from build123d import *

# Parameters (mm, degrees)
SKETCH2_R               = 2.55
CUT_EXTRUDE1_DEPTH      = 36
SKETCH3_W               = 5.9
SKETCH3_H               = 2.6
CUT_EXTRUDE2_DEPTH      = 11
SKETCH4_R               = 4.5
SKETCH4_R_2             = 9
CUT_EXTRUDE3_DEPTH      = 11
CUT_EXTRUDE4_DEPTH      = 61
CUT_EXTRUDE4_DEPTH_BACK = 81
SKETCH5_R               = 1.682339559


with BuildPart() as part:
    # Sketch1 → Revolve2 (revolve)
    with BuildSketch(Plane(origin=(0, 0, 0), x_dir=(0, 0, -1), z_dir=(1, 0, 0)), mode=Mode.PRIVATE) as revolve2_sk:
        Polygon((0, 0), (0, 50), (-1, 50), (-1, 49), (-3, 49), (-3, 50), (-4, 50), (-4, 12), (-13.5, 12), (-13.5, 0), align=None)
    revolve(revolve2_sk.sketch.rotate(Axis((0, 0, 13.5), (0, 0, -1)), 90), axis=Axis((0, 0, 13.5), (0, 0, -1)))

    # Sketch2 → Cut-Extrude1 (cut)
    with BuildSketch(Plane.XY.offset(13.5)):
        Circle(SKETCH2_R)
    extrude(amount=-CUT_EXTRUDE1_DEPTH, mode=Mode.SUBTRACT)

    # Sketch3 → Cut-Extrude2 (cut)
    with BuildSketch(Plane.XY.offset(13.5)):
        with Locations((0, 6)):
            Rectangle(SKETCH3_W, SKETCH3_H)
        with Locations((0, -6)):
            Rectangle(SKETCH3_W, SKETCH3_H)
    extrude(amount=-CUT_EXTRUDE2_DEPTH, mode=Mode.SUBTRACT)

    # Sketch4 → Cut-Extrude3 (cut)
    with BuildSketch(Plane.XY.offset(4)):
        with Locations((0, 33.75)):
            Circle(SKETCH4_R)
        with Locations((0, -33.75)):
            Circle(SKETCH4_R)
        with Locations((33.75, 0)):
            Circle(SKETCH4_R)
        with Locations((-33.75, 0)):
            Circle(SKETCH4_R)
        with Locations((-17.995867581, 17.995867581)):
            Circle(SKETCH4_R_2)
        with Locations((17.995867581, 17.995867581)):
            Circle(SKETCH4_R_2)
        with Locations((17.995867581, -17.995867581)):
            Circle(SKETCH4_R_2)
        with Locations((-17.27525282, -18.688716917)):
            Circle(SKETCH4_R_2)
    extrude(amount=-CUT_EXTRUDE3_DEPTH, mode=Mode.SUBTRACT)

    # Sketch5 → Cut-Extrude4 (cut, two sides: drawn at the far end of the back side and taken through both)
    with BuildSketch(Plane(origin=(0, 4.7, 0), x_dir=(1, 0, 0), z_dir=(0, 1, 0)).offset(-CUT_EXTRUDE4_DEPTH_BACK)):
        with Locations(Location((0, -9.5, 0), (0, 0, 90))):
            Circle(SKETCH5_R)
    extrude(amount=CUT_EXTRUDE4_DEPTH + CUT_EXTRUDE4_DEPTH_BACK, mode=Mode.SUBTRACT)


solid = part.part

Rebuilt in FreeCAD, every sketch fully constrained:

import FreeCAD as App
import Part
import Sketcher

doc = App.newDocument("Part")
body = doc.addObject("PartDesign::Body", "Body")

sketch1 = body.newObject("Sketcher::SketchObject", "Sketch")
sketch1.AttachmentSupport = (doc.getObject("YZ_Plane"), [""])
sketch1.MapMode = "FlatFace"
sketch1.addGeometry(Part.LineSegment(App.Vector(0, 0, 0), App.Vector(50, 0, 0)), False)
sketch1.addGeometry(Part.LineSegment(App.Vector(50, 0, 0), App.Vector(50, 1, 0)), False)
sketch1.addGeometry(Part.LineSegment(App.Vector(50, 1, 0), App.Vector(49, 1, 0)), False)
sketch1.addGeometry(Part.LineSegment(App.Vector(49, 1, 0), App.Vector(49, 3, 0)), False)
sketch1.addGeometry(Part.LineSegment(App.Vector(49, 3, 0), App.Vector(50, 3, 0)), False)
sketch1.addGeometry(Part.LineSegment(App.Vector(50, 3, 0), App.Vector(50, 4, 0)), False)
sketch1.addGeometry(Part.LineSegment(App.Vector(50, 4, 0), App.Vector(12, 4, 0)), False)
sketch1.addGeometry(Part.LineSegment(App.Vector(12, 4, 0), App.Vector(12, 13.5, 0)), False)
sketch1.addGeometry(Part.LineSegment(App.Vector(12, 13.5, 0), App.Vector(0, 13.5, 0)), False)
sketch1.addGeometry(Part.LineSegment(App.Vector(0, 13.5, 0), App.Vector(0, 0, 0)), False)
sketch1.addConstraint(Sketcher.Constraint("Coincident", 0, 2, 1, 1))
sketch1.addConstraint(Sketcher.Constraint("Coincident", 1, 2, 2, 1))
sketch1.addConstraint(Sketcher.Constraint("Coincident", 2, 2, 3, 1))
sketch1.addConstraint(Sketcher.Constraint("Coincident", 3, 2, 4, 1))
sketch1.addConstraint(Sketcher.Constraint("Coincident", 4, 2, 5, 1))
sketch1.addConstraint(Sketcher.Constraint("Coincident", 5, 2, 6, 1))
sketch1.addConstraint(Sketcher.Constraint("Coincident", 6, 2, 7, 1))
sketch1.addConstraint(Sketcher.Constraint("Coincident", 7, 2, 8, 1))
sketch1.addConstraint(Sketcher.Constraint("Coincident", 8, 2, 9, 1))
sketch1.addConstraint(Sketcher.Constraint("Coincident", 9, 2, 0, 1))
sketch1.addConstraint(Sketcher.Constraint("Horizontal", 0))
sketch1.addConstraint(Sketcher.Constraint("Vertical", 1))
sketch1.addConstraint(Sketcher.Constraint("Horizontal", 2))
sketch1.addConstraint(Sketcher.Constraint("Vertical", 3))
sketch1.addConstraint(Sketcher.Constraint("Horizontal", 4))
sketch1.addConstraint(Sketcher.Constraint("Vertical", 5))
sketch1.addConstraint(Sketcher.Constraint("Horizontal", 6))
sketch1.addConstraint(Sketcher.Constraint("Vertical", 7))
sketch1.addConstraint(Sketcher.Constraint("Horizontal", 8))
sketch1.addConstraint(Sketcher.Constraint("Vertical", 9))
sketch1.addConstraint(Sketcher.Constraint("Coincident", 9, 2, -1, 1))
sketch1.addConstraint(Sketcher.Constraint("Vertical", 1, 2, 4, 2))
sketch1.addConstraint(Sketcher.Constraint("Equal", 4, 1))
sketch1.addConstraint(Sketcher.Constraint("Equal", 1, 5))
sketch1.addConstraint(Sketcher.Constraint("DistanceX", 0, 1, 0, 2, 50.0))
sketch1.addConstraint(Sketcher.Constraint("DistanceX", 2, 2, 2, 1, 1.0))
sketch1.addConstraint(Sketcher.Constraint("DistanceX", 6, 2, 6, 1, 38.0))
sketch1.addConstraint(Sketcher.Constraint("DistanceY", 3, 1, 3, 2, 2.0))
sketch1.addConstraint(Sketcher.Constraint("DistanceY", 7, 1, 7, 2, 9.5))
revolution = body.newObject("PartDesign::Revolution", "Revolution")
revolution.Profile = sketch1
revolution.ReferenceAxis = (sketch1, ["V_Axis"])
revolution.Angle = 360

sketch2 = body.newObject("Sketcher::SketchObject", "Sketch001")
sketch2.AttachmentSupport = (doc.getObject("XY_Plane"), [""])
sketch2.MapMode = "FlatFace"
sketch2.AttachmentOffset = App.Placement(App.Vector(0, 0, 13.5), App.Rotation())
sketch2.addGeometry(Part.Circle(App.Vector(0, 0, 0), App.Vector(0, 0, 1), 2.5), False)
sketch2.addConstraint(Sketcher.Constraint("Coincident", 0, 3, -1, 1))
sketch2.addConstraint(Sketcher.Constraint("Diameter", 0, 5.1))
pocket1 = body.newObject("PartDesign::Pocket", "Pocket")
pocket1.Profile = sketch2
pocket1.Length = 36

sketch3 = body.newObject("Sketcher::SketchObject", "Sketch002")
sketch3.AttachmentSupport = (doc.getObject("XY_Plane"), [""])
sketch3.MapMode = "FlatFace"
sketch3.AttachmentOffset = App.Placement(App.Vector(0, 0, 13.5), App.Rotation())
sketch3.addGeometry(Part.LineSegment(App.Vector(-3, 7.3, 0), App.Vector(-3, 4.7, 0)), False)
sketch3.addGeometry(Part.LineSegment(App.Vector(-3, 4.7, 0), App.Vector(3, 4.7, 0)), False)
sketch3.addGeometry(Part.LineSegment(App.Vector(3, 4.7, 0), App.Vector(3, 7.3, 0)), False)
sketch3.addGeometry(Part.LineSegment(App.Vector(3, 7.3, 0), App.Vector(-3, 7.3, 0)), False)
sketch3.addGeometry(Part.LineSegment(App.Vector(-3, -4.7, 0), App.Vector(-3, -7.3, 0)), False)
sketch3.addGeometry(Part.LineSegment(App.Vector(-3, -7.3, 0), App.Vector(3, -7.3, 0)), False)
sketch3.addGeometry(Part.LineSegment(App.Vector(3, -7.3, 0), App.Vector(3, -4.7, 0)), False)
sketch3.addGeometry(Part.LineSegment(App.Vector(3, -4.7, 0), App.Vector(-3, -4.7, 0)), False)
sketch3.addConstraint(Sketcher.Constraint("Coincident", 0, 2, 1, 1))
sketch3.addConstraint(Sketcher.Constraint("Coincident", 1, 2, 2, 1))
sketch3.addConstraint(Sketcher.Constraint("Coincident", 2, 2, 3, 1))
sketch3.addConstraint(Sketcher.Constraint("Coincident", 3, 2, 0, 1))
sketch3.addConstraint(Sketcher.Constraint("Coincident", 4, 2, 5, 1))
sketch3.addConstraint(Sketcher.Constraint("Coincident", 5, 2, 6, 1))
sketch3.addConstraint(Sketcher.Constraint("Coincident", 6, 2, 7, 1))
sketch3.addConstraint(Sketcher.Constraint("Coincident", 7, 2, 4, 1))
sketch3.addConstraint(Sketcher.Constraint("Vertical", 0))
sketch3.addConstraint(Sketcher.Constraint("Horizontal", 1))
sketch3.addConstraint(Sketcher.Constraint("Vertical", 2))
sketch3.addConstraint(Sketcher.Constraint("Horizontal", 3))
sketch3.addConstraint(Sketcher.Constraint("Vertical", 4))
sketch3.addConstraint(Sketcher.Constraint("Horizontal", 5))
sketch3.addConstraint(Sketcher.Constraint("Vertical", 6))
sketch3.addConstraint(Sketcher.Constraint("Horizontal", 7))
sketch3.addConstraint(Sketcher.Constraint("Symmetric", 2, 2, 4, 2, -1, 1))
sketch3.addConstraint(Sketcher.Constraint("Symmetric", 0, 2, 6, 2, -1, 1))
sketch3.addConstraint(Sketcher.Constraint("Vertical", 3, 2, 4, 2))
sketch3.addConstraint(Sketcher.Constraint("DistanceX", 1, 1, 1, 2, 5.9))
sketch3.addConstraint(Sketcher.Constraint("DistanceY", 0, 2, 0, 1, 2.6))
sketch3.addConstraint(Sketcher.Constraint("DistanceY", 4, 2, 0, 2, 12.0))
pocket2 = body.newObject("PartDesign::Pocket", "Pocket001")
pocket2.Profile = sketch3
pocket2.Length = 11

sketch4 = body.newObject("Sketcher::SketchObject", "Sketch003")
sketch4.AttachmentSupport = (doc.getObject("XY_Plane"), [""])
sketch4.MapMode = "FlatFace"
sketch4.AttachmentOffset = App.Placement(App.Vector(0, 0, 4), App.Rotation())
sketch4.addGeometry(Part.Circle(App.Vector(0, 33.8, 0), App.Vector(0, 0, 1), 4.5), False)
sketch4.addGeometry(Part.Circle(App.Vector(0, -33.8, 0), App.Vector(0, 0, 1), 4.5), False)
sketch4.addGeometry(Part.Circle(App.Vector(33.8, 0, 0), App.Vector(0, 0, 1), 4.5), False)
sketch4.addGeometry(Part.Circle(App.Vector(-33.8, 0, 0), App.Vector(0, 0, 1), 4.5), False)
sketch4.addGeometry(Part.Circle(App.Vector(-18, 18, 0), App.Vector(0, 0, 1), 9), False)
sketch4.addGeometry(Part.Circle(App.Vector(18, 18, 0), App.Vector(0, 0, 1), 9), False)
sketch4.addGeometry(Part.Circle(App.Vector(18, -18, 0), App.Vector(0, 0, 1), 9), False)
sketch4.addGeometry(Part.Circle(App.Vector(-17.3, -18.7, 0), App.Vector(0, 0, 1), 9), False)
sketch4.addConstraint(Sketcher.Constraint("Equal", 0, 1))
sketch4.addConstraint(Sketcher.Constraint("Equal", 1, 2))
sketch4.addConstraint(Sketcher.Constraint("Equal", 2, 3))
sketch4.addConstraint(Sketcher.Constraint("Equal", 4, 5))
sketch4.addConstraint(Sketcher.Constraint("Equal", 5, 6))
sketch4.addConstraint(Sketcher.Constraint("Equal", 6, 7))
sketch4.addConstraint(Sketcher.Constraint("Symmetric", 0, 3, 1, 3, -1, 1))
sketch4.addConstraint(Sketcher.Constraint("Symmetric", 2, 3, 3, 3, -1, 1))
sketch4.addConstraint(Sketcher.Constraint("Symmetric", 4, 3, 6, 3, -1, 1))
sketch4.addConstraint(Sketcher.Constraint("Symmetric", 4, 3, 5, 3, -2))
sketch4.addConstraint(Sketcher.Constraint("PointOnObject", 0, 3, -2))
sketch4.addConstraint(Sketcher.Constraint("PointOnObject", 2, 3, -1))
sketch4.addConstraint(Sketcher.Constraint("Diameter", 0, 9.0))
sketch4.addConstraint(Sketcher.Constraint("Diameter", 4, 18.0))
sketch4.addConstraint(Sketcher.Constraint("DistanceY", 1, 3, 0, 3, 67.5))
sketch4.addConstraint(Sketcher.Constraint("DistanceX", 3, 3, 2, 3, 67.5))
sketch4.addConstraint(Sketcher.Constraint("DistanceX", 7, 3, 6, 3, 35.27112))
sketch4.addConstraint(Sketcher.Constraint("DistanceY", 7, 3, 6, 3, 0.692849))
sketch4.addConstraint(Sketcher.Constraint("DistanceX", 4, 3, -1, 1, 17.995868))
sketch4.addConstraint(Sketcher.Constraint("DistanceY", -1, 1, 4, 3, 17.995868))
pocket3 = body.newObject("PartDesign::Pocket", "Pocket002")
pocket3.Profile = sketch4
pocket3.Length = 11

sketch5 = body.newObject("Sketcher::SketchObject", "Sketch004")
sketch5.AttachmentSupport = (doc.getObject("XZ_Plane"), [""])
sketch5.MapMode = "FlatFace"
sketch5.AttachmentOffset = App.Placement(App.Vector(0, 0, -4.7), App.Rotation())
sketch5.addGeometry(Part.Circle(App.Vector(0, 9.5, 0), App.Vector(0, 0, 1), 1.7), False)
sketch5.addConstraint(Sketcher.Constraint("PointOnObject", 0, 3, -2))
sketch5.addConstraint(Sketcher.Constraint("DistanceY", -1, 1, 0, 3, 9.5))
sketch5.addConstraint(Sketcher.Constraint("Diameter", 0, 3.364679))
pocket4 = body.newObject("PartDesign::Pocket", "Pocket003")
pocket4.Profile = sketch5
pocket4.Type = "ThroughAll"
pocket4.Midplane = True

doc.recompute()
